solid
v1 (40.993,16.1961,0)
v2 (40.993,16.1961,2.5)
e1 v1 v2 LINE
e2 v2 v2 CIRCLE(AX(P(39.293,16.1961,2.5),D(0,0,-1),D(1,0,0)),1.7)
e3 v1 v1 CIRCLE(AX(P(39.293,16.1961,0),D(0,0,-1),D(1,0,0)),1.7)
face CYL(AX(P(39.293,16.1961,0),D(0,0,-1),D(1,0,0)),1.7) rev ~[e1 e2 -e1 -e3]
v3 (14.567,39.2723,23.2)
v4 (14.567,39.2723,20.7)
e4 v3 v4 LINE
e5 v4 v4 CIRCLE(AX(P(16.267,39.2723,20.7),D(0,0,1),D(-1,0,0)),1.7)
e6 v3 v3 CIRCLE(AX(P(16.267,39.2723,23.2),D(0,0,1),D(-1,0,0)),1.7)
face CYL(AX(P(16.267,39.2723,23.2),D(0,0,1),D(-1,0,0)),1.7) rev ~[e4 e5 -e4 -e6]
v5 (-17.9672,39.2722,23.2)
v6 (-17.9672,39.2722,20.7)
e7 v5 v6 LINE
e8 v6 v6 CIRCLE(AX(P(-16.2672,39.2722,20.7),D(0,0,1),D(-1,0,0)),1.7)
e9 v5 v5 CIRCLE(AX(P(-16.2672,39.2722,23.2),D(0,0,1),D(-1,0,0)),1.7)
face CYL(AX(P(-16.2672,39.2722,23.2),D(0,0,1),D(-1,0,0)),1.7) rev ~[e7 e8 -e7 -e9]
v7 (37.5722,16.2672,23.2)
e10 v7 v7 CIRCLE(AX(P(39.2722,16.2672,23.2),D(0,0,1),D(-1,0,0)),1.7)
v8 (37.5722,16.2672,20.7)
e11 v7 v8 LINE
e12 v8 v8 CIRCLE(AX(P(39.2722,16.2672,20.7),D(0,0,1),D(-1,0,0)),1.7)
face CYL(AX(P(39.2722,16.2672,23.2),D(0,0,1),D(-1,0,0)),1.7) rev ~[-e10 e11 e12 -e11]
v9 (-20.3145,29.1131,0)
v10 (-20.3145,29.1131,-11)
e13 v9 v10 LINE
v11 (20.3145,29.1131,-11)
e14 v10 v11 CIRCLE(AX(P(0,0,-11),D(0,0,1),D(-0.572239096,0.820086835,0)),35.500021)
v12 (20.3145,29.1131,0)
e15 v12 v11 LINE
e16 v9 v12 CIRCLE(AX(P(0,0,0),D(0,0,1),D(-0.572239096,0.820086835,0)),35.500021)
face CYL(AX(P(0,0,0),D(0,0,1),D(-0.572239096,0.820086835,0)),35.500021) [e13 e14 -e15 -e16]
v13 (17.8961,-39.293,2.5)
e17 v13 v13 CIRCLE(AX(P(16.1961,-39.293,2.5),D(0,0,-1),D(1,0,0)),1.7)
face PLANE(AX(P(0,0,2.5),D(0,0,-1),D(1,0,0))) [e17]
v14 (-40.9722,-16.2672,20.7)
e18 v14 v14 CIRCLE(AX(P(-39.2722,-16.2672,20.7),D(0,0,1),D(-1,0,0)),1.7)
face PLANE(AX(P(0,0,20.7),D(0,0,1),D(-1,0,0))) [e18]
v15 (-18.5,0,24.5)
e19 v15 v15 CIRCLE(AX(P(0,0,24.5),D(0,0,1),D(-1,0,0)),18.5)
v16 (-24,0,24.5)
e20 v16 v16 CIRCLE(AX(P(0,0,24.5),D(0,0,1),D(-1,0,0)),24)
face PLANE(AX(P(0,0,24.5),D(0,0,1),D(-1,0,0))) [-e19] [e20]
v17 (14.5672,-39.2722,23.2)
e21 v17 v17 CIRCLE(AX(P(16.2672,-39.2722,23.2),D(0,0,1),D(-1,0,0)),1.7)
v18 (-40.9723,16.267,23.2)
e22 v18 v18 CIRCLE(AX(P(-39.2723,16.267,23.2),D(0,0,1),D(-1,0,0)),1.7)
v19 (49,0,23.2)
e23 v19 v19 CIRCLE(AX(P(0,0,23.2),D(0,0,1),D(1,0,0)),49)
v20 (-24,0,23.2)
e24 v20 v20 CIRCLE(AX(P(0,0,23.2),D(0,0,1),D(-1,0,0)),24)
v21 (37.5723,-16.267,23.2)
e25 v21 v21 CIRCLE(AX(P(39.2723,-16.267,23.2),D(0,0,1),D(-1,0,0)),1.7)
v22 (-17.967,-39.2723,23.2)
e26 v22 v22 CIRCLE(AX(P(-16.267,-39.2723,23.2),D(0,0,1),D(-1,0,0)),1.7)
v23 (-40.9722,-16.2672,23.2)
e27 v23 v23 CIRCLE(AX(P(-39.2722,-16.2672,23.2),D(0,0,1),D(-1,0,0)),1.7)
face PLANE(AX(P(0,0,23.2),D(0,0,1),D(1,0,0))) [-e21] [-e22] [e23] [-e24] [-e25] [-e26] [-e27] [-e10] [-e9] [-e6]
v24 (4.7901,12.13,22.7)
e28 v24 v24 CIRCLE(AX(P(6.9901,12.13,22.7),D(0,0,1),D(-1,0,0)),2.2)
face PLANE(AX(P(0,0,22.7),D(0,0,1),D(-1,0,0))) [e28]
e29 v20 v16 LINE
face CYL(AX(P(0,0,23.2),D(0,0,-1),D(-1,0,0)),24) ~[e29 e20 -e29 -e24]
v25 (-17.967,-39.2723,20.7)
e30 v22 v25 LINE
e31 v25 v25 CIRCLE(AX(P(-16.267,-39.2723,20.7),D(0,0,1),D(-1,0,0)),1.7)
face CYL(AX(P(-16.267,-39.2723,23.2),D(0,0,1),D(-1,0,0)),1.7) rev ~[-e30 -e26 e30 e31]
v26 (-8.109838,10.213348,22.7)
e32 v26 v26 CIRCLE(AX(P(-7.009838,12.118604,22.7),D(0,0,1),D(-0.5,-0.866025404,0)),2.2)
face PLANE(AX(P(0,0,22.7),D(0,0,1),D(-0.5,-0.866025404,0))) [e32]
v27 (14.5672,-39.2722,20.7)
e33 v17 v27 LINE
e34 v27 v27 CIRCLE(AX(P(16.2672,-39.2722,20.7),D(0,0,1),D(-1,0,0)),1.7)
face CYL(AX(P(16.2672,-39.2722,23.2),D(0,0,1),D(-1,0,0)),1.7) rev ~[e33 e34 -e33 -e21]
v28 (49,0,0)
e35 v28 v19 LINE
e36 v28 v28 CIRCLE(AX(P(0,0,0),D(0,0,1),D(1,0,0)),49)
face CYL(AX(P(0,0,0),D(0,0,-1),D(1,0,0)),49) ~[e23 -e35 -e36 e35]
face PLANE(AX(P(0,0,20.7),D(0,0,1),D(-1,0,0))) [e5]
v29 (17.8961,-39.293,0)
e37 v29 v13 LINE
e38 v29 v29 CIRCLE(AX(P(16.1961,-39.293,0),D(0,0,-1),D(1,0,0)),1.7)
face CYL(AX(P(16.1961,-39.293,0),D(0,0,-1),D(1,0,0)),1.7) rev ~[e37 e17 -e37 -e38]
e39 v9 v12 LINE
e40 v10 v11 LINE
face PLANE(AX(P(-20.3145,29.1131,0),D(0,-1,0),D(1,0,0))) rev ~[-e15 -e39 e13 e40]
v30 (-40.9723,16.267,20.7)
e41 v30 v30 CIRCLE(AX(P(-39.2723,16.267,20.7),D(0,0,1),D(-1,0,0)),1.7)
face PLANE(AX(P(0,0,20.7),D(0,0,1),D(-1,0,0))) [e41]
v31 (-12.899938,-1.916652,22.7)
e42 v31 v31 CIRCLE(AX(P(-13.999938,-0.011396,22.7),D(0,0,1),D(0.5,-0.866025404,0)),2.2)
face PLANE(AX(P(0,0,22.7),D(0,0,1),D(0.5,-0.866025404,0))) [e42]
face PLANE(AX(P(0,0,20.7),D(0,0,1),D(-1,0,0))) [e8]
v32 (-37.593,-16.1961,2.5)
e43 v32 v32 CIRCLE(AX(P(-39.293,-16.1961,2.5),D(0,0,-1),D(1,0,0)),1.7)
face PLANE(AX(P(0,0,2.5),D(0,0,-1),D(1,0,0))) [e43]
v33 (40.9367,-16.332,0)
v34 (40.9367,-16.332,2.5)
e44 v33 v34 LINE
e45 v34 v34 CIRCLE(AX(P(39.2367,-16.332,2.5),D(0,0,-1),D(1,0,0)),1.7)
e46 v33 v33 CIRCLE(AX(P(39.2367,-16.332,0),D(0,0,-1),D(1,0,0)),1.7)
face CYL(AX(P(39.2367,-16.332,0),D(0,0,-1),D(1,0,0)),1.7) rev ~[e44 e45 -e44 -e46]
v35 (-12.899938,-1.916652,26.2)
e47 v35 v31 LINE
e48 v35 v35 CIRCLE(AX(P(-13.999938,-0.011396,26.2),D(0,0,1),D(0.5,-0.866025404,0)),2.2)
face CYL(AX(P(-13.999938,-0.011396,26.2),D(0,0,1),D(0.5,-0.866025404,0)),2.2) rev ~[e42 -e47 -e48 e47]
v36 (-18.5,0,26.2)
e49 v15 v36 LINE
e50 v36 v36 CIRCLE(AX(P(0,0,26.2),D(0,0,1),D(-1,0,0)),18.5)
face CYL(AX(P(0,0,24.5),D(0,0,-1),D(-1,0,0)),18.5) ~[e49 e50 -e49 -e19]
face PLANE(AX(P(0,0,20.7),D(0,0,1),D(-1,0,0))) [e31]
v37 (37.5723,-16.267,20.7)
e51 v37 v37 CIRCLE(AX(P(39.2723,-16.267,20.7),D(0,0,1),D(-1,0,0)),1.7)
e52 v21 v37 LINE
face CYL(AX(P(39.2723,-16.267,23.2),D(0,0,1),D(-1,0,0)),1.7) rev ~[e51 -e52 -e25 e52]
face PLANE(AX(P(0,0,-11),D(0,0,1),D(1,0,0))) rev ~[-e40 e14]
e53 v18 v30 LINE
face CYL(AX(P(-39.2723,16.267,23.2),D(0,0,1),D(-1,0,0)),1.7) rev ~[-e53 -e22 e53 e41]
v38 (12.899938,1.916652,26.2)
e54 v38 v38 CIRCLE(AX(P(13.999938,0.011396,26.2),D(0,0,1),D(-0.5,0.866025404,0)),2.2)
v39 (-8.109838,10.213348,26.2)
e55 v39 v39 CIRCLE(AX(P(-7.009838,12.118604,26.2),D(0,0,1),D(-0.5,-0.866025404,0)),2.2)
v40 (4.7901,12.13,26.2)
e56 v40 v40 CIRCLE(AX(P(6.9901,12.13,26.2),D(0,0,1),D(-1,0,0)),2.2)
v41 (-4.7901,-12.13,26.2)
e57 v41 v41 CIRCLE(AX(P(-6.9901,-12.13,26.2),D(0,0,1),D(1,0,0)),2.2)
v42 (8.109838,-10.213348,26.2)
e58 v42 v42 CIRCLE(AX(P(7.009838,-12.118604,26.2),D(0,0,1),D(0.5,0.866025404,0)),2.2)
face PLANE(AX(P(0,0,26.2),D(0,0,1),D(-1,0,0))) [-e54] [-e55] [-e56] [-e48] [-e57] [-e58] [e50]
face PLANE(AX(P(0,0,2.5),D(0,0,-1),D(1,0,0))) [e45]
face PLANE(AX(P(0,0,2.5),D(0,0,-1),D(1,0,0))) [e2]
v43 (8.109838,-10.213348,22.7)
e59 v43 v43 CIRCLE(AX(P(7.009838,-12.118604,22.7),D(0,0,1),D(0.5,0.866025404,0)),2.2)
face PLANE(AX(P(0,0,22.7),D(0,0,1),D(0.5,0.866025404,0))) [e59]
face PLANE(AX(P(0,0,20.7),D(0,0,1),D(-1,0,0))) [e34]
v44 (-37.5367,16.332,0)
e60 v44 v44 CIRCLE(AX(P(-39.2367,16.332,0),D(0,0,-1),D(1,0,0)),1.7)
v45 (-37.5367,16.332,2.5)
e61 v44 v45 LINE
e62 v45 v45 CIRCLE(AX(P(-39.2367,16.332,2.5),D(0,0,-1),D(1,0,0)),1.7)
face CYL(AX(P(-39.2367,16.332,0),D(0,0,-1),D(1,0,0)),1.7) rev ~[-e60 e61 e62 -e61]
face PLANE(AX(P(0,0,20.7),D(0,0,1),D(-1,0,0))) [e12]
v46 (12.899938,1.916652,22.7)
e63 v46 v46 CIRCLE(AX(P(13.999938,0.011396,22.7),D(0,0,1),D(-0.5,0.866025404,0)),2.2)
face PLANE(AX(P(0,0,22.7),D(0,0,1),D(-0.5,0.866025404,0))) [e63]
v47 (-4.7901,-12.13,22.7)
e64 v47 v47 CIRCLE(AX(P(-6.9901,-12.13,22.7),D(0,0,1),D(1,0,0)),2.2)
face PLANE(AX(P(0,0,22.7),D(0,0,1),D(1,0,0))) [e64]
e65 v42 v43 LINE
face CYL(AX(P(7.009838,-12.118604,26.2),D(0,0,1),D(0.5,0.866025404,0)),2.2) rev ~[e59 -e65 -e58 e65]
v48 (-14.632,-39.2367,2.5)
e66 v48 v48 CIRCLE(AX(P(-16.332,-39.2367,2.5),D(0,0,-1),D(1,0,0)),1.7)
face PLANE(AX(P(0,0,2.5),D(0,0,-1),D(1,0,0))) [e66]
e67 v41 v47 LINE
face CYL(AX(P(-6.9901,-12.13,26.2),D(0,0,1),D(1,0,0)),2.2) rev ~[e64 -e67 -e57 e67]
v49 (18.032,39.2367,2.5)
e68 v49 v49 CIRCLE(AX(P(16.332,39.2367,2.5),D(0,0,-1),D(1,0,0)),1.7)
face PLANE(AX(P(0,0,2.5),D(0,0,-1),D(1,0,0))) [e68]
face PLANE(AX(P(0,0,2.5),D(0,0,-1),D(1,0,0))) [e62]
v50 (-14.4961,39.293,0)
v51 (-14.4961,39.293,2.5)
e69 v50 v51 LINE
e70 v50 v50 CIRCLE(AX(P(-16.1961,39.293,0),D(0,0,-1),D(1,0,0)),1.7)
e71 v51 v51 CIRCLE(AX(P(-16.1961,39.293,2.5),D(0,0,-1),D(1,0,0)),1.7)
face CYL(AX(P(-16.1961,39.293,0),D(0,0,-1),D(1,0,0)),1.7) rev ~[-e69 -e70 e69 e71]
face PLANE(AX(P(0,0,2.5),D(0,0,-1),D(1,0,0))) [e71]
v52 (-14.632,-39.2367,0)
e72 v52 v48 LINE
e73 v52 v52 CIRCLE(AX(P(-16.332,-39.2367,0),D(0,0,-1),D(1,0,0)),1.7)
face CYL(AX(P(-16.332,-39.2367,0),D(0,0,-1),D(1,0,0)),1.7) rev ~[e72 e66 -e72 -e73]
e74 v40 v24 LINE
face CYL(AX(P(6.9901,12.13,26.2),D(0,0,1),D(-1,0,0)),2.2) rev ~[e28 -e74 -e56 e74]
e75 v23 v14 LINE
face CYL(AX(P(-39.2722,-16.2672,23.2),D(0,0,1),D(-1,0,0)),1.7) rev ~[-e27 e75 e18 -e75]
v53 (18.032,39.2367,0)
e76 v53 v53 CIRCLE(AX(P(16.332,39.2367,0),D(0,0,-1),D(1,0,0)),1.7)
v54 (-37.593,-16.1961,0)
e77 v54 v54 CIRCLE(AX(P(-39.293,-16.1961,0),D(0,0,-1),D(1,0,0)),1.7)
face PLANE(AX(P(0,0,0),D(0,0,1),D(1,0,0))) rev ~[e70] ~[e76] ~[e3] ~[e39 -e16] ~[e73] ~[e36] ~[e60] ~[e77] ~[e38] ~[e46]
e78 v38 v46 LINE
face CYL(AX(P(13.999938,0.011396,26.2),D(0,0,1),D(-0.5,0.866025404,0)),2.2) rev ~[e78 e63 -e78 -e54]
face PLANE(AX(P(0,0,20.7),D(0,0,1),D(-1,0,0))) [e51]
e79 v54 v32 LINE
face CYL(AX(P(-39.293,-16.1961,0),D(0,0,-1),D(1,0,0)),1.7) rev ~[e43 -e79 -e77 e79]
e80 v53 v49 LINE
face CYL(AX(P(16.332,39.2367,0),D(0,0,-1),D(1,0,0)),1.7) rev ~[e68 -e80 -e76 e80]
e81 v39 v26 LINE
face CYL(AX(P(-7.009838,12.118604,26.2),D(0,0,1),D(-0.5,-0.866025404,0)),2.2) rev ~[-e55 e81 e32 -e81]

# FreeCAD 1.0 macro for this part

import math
import FreeCAD as App
import Part
import Sketcher

doc = App.newDocument("Part")
body = doc.addObject("PartDesign::Body", "Body")

sketch1 = doc.addObject("Sketcher::SketchObject", "Sketch")
body.addObject(sketch1)
sketch1.AttachmentSupport = (doc.XY_Plane, [""])
sketch1.MapMode = "FlatFace"
sketch1.addGeometry(Part.Circle(App.Vector(0, 0, 0), App.Vector(0, 0, 1), 49), False)
sketch1.addConstraint([
    Sketcher.Constraint("Coincident", 0, 3, -1, 1),
    Sketcher.Constraint("Diameter", 0, 98.0),
])
pad1 = doc.addObject("PartDesign::Pad", "Pad")
body.addObject(pad1)
pad1.Profile = sketch1
pad1.Length = 23.2

sketch2 = doc.addObject("Sketcher::SketchObject", "Sketch001")
body.addObject(sketch2)
sketch2.AttachmentSupport = (doc.XY_Plane, [""])
sketch2.MapMode = "FlatFace"
sketch2.AttachmentOffset = App.Placement(App.Vector(0, 0, 23.2), App.Rotation())
sketch2.addGeometry(Part.Circle(App.Vector(0, 0, 0), App.Vector(0, 0, 1), 24), False)
sketch2.addConstraint([
    Sketcher.Constraint("Coincident", 0, 3, -1, 1),
    Sketcher.Constraint("Diameter", 0, 48.0),
])
pad2 = doc.addObject("PartDesign::Pad", "Pad001")
body.addObject(pad2)
pad2.Profile = sketch2
pad2.Length = 1.3

sketch3 = doc.addObject("Sketcher::SketchObject", "Sketch002")
body.addObject(sketch3)
sketch3.AttachmentSupport = (doc.XY_Plane, [""])
sketch3.MapMode = "FlatFace"
sketch3.AttachmentOffset = App.Placement(App.Vector(0, 0, 24.5), App.Rotation())
sketch3.addGeometry(Part.Circle(App.Vector(0, 0, 0), App.Vector(0, 0, 1), 18), False)
sketch3.addConstraint([
    Sketcher.Constraint("Coincident", 0, 3, -1, 1),
    Sketcher.Constraint("Diameter", 0, 37.0),
])
pad3 = doc.addObject("PartDesign::Pad", "Pad002")
body.addObject(pad3)
pad3.Profile = sketch3
pad3.Length = 1.7

sketch4 = doc.addObject("Sketcher::SketchObject", "Sketch003")
body.addObject(sketch4)
sketch4.AttachmentSupport = (doc.XY_Plane, [""])
sketch4.MapMode = "FlatFace"
sketch4.addGeometry([
    Part.LineSegment(App.Vector(20, 29, 0), App.Vector(-20, 29, 0)),
    Part.ArcOfCircle(Part.Circle(App.Vector(0, 0, 0), App.Vector(0, 0, 1), 36), math.radians(125), math.radians(415)),
], False)
sketch4.addConstraint([
    Sketcher.Constraint("Coincident", 0, 1, 1, 2),
    Sketcher.Constraint("Coincident", 1, 1, 0, 2),
    Sketcher.Constraint("Horizontal", 0),
    Sketcher.Constraint("Coincident", 1, 3, -1, 1),
    Sketcher.Constraint("Radius", 1, 35.5),
    Sketcher.Constraint("DistanceX", 0, 2, 0, 1, 40.629),
])
pad4 = doc.addObject("PartDesign::Pad", "Pad003")
body.addObject(pad4)
pad4.Profile = sketch4
pad4.Length = 11
pad4.Reversed = True

sketch5 = doc.addObject("Sketcher::SketchObject", "Sketch004")
body.addObject(sketch5)
sketch5.AttachmentSupport = (doc.XY_Plane, [""])
sketch5.MapMode = "FlatFace"
sketch5.addGeometry([
    Part.Circle(App.Vector(16.2, -39.3, 0), App.Vector(0, 0, 1), 1.7),
    Part.Circle(App.Vector(-16.3, -39.2, 0), App.Vector(0, 0, 1), 1.7),
    Part.Circle(App.Vector(-39.3, -16.2, 0), App.Vector(0, 0, 1), 1.7),
    Part.Circle(App.Vector(-39.2, 16.3, 0), App.Vector(0, 0, 1), 1.7),
    Part.Circle(App.Vector(-16.2, 39.3, 0), App.Vector(0, 0, 1), 1.7),
    Part.Circle(App.Vector(16.3, 39.2, 0), App.Vector(0, 0, 1), 1.7),
    Part.Circle(App.Vector(39.3, 16.2, 0), App.Vector(0, 0, 1), 1.7),
    Part.Circle(App.Vector(39.2, -16.3, 0), App.Vector(0, 0, 1), 1.7),
], False)
sketch5.addConstraint([
    Sketcher.Constraint("Equal", 0, 1),
    Sketcher.Constraint("Equal", 1, 2),
    Sketcher.Constraint("Equal", 2, 3),
    Sketcher.Constraint("Equal", 3, 4),
    Sketcher.Constraint("Equal", 4, 5),
    Sketcher.Constraint("Equal", 5, 6),
    Sketcher.Constraint("Equal", 6, 7),
    Sketcher.Constraint("Symmetric", 0, 3, 4, 3, -1, 1),
    Sketcher.Constraint("Symmetric", 1, 3, 5, 3, -1, 1),
    Sketcher.Constraint("Symmetric", 2, 3, 6, 3, -1, 1),
    Sketcher.Constraint("Symmetric", 3, 3, 7, 3, -1, 1),
    Sketcher.Constraint("Diameter", 0, 3.4),
    Sketcher.Constraint("DistanceX", -1, 1, 0, 3, 16.196),
    Sketcher.Constraint("DistanceY", 0, 3, -1, 1, 39.293),
    Sketcher.Constraint("DistanceX", 1, 3, -1, 1, 16.332),
    Sketcher.Constraint("DistanceX", 2, 3, -1, 1, 39.293),
    Sketcher.Constraint("DistanceY", 2, 3, -1, 1, 16.196),
    Sketcher.Constraint("DistanceY", -1, 1, 3, 3, 16.332),
    Sketcher.Constraint("DistanceY", 1, 3, -1, 1, 39.2367),
    Sketcher.Constraint("DistanceX", 3, 3, -1, 1, 39.2367),
])
pocket1 = doc.addObject("PartDesign::Pocket", "Pocket")
body.addObject(pocket1)
pocket1.Profile = sketch5
pocket1.Length = 2.5
pocket1.Reversed = True

sketch6 = doc.addObject("Sketcher::SketchObject", "Sketch005")
body.addObject(sketch6)
sketch6.AttachmentSupport = (doc.XY_Plane, [""])
sketch6.MapMode = "FlatFace"
sketch6.AttachmentOffset = App.Placement(App.Vector(0, 0, 23.2), App.Rotation())
sketch6.addGeometry([
    Part.Circle(App.Vector(16.3, 39.3, 0), App.Vector(0, 0, 1), 1.7),
    Part.Circle(App.Vector(-16.3, 39.3, 0), App.Vector(0, 0, 1), 1.7),
    Part.Circle(App.Vector(-39.3, 16.3, 0), App.Vector(0, 0, 1), 1.7),
    Part.Circle(App.Vector(-39.3, -16.3, 0), App.Vector(0, 0, 1), 1.7),
    Part.Circle(App.Vector(-16.3, -39.3, 0), App.Vector(0, 0, 1), 1.7),
    Part.Circle(App.Vector(16.3, -39.3, 0), App.Vector(0, 0, 1), 1.7),
    Part.Circle(App.Vector(39.3, -16.3, 0), App.Vector(0, 0, 1), 1.7),
    Part.Circle(App.Vector(39.3, 16.3, 0), App.Vector(0, 0, 1), 1.7),
], False)
sketch6.addConstraint([
    Sketcher.Constraint("Equal", 0, 1),
    Sketcher.Constraint("Equal", 1, 2),
    Sketcher.Constraint("Equal", 2, 3),
    Sketcher.Constraint("Equal", 3, 4),
    Sketcher.Constraint("Equal", 4, 5),
    Sketcher.Constraint("Equal", 5, 6),
    Sketcher.Constraint("Equal", 6, 7),
    Sketcher.Constraint("Symmetric", 0, 3, 4, 3, -1, 1),
    Sketcher.Constraint("Symmetric", 1, 3, 5, 3, -1, 1),
    Sketcher.Constraint("Symmetric", 2, 3, 6, 3, -1, 1),
    Sketcher.Constraint("Symmetric", 3, 3, 7, 3, -1, 1),
    Sketcher.Constraint("Symmetric", 0, 3, 1, 3, -2),
    Sketcher.Constraint("Symmetric", 3, 3, 6, 3, -2),
    Sketcher.Constraint("Diameter", 0, 3.4),
    Sketcher.Constraint("DistanceX", -1, 1, 0, 3, 16.267),
    Sketcher.Constraint("DistanceY", -1, 1, 2, 3, 16.267),
    Sketcher.Constraint("DistanceX", 2, 3, 1, 3, 23.005),
    Sketcher.Constraint("DistanceY", 4, 3, 3, 3, 23.005),
])
pocket2 = doc.addObject("PartDesign::Pocket", "Pocket001")
body.addObject(pocket2)
pocket2.Profile = sketch6
pocket2.Length = 2.5

sketch7 = doc.addObject("Sketcher::SketchObject", "Sketch006")
body.addObject(sketch7)
sketch7.AttachmentSupport = (doc.XY_Plane, [""])
sketch7.MapMode = "FlatFace"
sketch7.AttachmentOffset = App.Placement(App.Vector(0, 0, 26.2), App.Rotation())
sketch7.addGeometry(Part.Circle(App.Vector(7, 12.1, 0), App.Vector(0, 0, 1), 2.2), False)
sketch7.addConstraint([
    Sketcher.Constraint("Diameter", 0, 4.4),
    Sketcher.Constraint("DistanceX", -1, 1, 0, 3, 6.99),
    Sketcher.Constraint("DistanceY", -1, 1, 0, 3, 12.13),
])
pocket3 = doc.addObject("PartDesign::Pocket", "Pocket002")
body.addObject(pocket3)
pocket3.Profile = sketch7
pocket3.Length = 3.5
doc.recompute()

polarpattern = doc.addObject("PartDesign::PolarPattern", "PolarPattern")
body.addObject(polarpattern)
polarpattern.Originals = [pocket3]
polarpattern.Axis = (doc.Z_Axis, [""])
polarpattern.Angle = 360
polarpattern.Occurrences = 6
body.Tip = polarpattern

doc.recompute()
